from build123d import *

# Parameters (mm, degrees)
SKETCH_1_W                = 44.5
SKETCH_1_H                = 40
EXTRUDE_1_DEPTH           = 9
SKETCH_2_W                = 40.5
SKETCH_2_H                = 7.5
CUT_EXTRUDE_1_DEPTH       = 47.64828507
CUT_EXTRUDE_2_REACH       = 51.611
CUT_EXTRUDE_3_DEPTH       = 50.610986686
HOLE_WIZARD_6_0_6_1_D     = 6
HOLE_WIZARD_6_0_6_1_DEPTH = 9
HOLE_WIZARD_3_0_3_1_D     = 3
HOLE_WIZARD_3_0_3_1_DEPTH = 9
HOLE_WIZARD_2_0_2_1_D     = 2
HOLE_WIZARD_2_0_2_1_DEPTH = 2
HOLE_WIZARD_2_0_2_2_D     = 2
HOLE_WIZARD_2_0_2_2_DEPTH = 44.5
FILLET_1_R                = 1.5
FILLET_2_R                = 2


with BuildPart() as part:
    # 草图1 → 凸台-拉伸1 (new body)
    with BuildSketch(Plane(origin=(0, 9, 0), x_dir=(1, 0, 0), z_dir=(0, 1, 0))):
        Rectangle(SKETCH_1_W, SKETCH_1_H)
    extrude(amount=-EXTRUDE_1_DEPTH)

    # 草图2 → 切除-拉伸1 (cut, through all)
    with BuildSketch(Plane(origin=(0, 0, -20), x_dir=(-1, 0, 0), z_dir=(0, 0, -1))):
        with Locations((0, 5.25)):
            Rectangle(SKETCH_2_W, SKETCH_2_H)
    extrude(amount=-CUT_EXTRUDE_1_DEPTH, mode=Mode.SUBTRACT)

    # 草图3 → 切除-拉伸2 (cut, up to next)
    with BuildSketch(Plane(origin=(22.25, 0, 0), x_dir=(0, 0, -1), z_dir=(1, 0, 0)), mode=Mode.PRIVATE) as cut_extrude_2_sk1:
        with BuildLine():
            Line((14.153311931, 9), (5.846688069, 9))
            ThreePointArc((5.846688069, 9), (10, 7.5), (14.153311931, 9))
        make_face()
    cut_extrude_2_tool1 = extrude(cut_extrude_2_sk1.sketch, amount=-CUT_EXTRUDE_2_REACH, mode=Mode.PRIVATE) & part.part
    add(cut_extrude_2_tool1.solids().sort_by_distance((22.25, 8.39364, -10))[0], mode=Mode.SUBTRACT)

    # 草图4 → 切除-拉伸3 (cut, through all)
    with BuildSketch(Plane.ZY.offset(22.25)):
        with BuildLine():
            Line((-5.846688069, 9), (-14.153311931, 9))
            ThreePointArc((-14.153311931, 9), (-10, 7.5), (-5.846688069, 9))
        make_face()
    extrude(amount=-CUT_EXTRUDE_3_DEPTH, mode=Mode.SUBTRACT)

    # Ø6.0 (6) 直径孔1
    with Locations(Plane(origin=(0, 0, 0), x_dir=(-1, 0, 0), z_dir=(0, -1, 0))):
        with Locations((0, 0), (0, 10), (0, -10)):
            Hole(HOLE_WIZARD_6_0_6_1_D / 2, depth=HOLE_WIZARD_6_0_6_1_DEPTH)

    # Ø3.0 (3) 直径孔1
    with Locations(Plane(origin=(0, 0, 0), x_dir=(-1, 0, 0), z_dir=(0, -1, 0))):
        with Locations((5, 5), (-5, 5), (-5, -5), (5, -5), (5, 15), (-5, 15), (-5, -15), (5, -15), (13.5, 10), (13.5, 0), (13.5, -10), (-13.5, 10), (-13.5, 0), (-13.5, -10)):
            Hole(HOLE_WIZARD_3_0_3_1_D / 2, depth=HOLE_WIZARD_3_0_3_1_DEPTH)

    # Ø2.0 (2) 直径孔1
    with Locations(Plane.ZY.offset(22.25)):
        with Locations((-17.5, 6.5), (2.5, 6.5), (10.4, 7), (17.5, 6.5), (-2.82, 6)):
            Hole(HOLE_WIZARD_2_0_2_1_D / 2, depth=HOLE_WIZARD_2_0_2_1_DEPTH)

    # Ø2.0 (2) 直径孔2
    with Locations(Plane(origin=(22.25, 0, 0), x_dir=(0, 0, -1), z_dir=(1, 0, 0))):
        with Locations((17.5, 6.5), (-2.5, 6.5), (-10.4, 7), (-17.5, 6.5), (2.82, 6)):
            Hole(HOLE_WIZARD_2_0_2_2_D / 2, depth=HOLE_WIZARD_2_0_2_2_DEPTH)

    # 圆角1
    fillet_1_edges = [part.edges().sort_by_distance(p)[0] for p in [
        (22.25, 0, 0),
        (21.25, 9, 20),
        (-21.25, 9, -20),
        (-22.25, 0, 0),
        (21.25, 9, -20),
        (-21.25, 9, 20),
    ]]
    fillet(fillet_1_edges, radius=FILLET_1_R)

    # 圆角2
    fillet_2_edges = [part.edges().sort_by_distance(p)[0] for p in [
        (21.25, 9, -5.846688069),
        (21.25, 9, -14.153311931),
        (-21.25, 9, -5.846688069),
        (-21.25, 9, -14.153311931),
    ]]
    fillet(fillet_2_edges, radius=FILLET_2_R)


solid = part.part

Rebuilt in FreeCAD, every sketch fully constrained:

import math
import FreeCAD as App
import Part
import Sketcher
Q = App.Units.Quantity


def edges_at(feature, points):
    """Names of the edges that pass closest to the given points."""
    edges = feature.Shape.Edges
    near = lambda p: min(range(len(edges)), key=lambda i: edges[i].distToShape(Part.Vertex(*p))[0])
    return sorted({f"Edge{near(p) + 1}" for p in points})


def add_polygon(sketch, points):
    """Adds a closed chain of lines whose ends are joined by coincident constraints."""
    first, n = sketch.GeometryCount, len(points)
    for a, b in zip(points, points[1:] + points[:1]):
        sketch.addGeometry(Part.LineSegment(App.Vector(*a, 0), App.Vector(*b, 0)), False)
    for i in range(n):
        sketch.addConstraint(Sketcher.Constraint("Coincident", first + i, 2, first + (i + 1) % n, 1))

doc = App.newDocument("Part")
body = doc.addObject("PartDesign::Body", "Body")

sketch1 = body.newObject("Sketcher::SketchObject", "Sketch")
sketch1.AttachmentSupport = (doc.getObject("XZ_Plane"), [""])
sketch1.MapMode = "FlatFace"
sketch1.AttachmentOffset = App.Placement(App.Vector(0, 0, -9), App.Rotation())
add_polygon(sketch1, [(-22, -20), (-22, 20), (22, 20), (22, -20)])
sketch1.addConstraint([
    Sketcher.Constraint("Vertical", 0),
    Sketcher.Constraint("Horizontal", 1),
    Sketcher.Constraint("Vertical", 2),
    Sketcher.Constraint("Horizontal", 3),
    Sketcher.Constraint("Symmetric", 0, 2, 2, 2, -1, 1),
    Sketcher.Constraint("DistanceY", 0, 1, 0, 2, Q("40 mm")),
    Sketcher.Constraint("DistanceX", 1, 1, 1, 2, Q("44.5 mm")),
])
pad1 = body.newObject("PartDesign::Pad", "Pad")
pad1.Profile = sketch1
pad1.Length = 9

sketch2 = body.newObject("Sketcher::SketchObject", "Sketch001")
sketch2.AttachmentSupport = (doc.getObject("XY_Plane"), [""])
sketch2.MapMode = "FlatFace"
sketch2.AttachmentOffset = App.Placement(App.Vector(0, 0, -20), App.Rotation())
add_polygon(sketch2, [(20, 9), (20, 2), (-20, 2), (-20, 9)])
sketch2.addConstraint([
    Sketcher.Constraint("Vertical", 0),
    Sketcher.Constraint("Horizontal", 1),
    Sketcher.Constraint("Vertical", 2),
    Sketcher.Constraint("Horizontal", 3),
    Sketcher.Constraint("DistanceX", 1, 2, 1, 1, Q("40.5 mm")),
    Sketcher.Constraint("DistanceY", 0, 2, 0, 1, Q("7.5 mm")),
    Sketcher.Constraint("DistanceY", -1, 1, 2, 2, Q("9 mm")),
    Sketcher.Constraint("DistanceX", -1, 1, 0, 2, Q("20.25 mm")),
])
pocket1 = body.newObject("PartDesign::Pocket", "Pocket")
pocket1.Profile = sketch2
pocket1.Type = "ThroughAll"
pocket1.Reversed = True

sketch3 = body.newObject("Sketcher::SketchObject", "Sketch002")
sketch3.AttachmentSupport = (doc.getObject("YZ_Plane"), [""])
sketch3.MapMode = "FlatFace"
sketch3.AttachmentOffset = App.Placement(App.Vector(0, 0, 22.25), App.Rotation())
sketch3.addGeometry([
    Part.LineSegment(App.Vector(9, -14, 0), App.Vector(9, -6, 0)),
    Part.ArcOfCircle(Part.Circle(App.Vector(14, -10, 0), App.Vector(0, 0, 1), 6), math.radians(140), math.radians(220)),
], False)
sketch3.addConstraint([
    Sketcher.Constraint("Coincident", 0, 1, 1, 2),
    Sketcher.Constraint("Coincident", 1, 1, 0, 2),
    Sketcher.Constraint("Vertical", 0),
    Sketcher.Constraint("Radius", 1, Q("6.5 mm")),
    Sketcher.Constraint("DistanceX", -1, 1, 1, 3, Q("14 mm")),
    Sketcher.Constraint("DistanceY", 1, 3, -1, 1, Q("10 mm")),
    Sketcher.Constraint("DistanceX", -1, 1, 0, 1, Q("9 mm")),
])
pocket2 = body.newObject("PartDesign::Pocket", "Pocket001")
pocket2.Profile = sketch3
pocket2.Type = "UpToFirst"

sketch4 = body.newObject("Sketcher::SketchObject", "Sketch003")
sketch4.AttachmentSupport = (doc.getObject("YZ_Plane"), [""])
sketch4.MapMode = "FlatFace"
sketch4.AttachmentOffset = App.Placement(App.Vector(0, 0, -22.25), App.Rotation())
sketch4.addGeometry([
    Part.LineSegment(App.Vector(9, -6, 0), App.Vector(9, -14, 0)),
    Part.ArcOfCircle(Part.Circle(App.Vector(14, -10, 0), App.Vector(0, 0, 1), 6), math.radians(140), math.radians(220)),
], False)
sketch4.addConstraint([
    Sketcher.Constraint("Coincident", 0, 1, 1, 1),
    Sketcher.Constraint("Coincident", 1, 2, 0, 2),
    Sketcher.Constraint("Vertical", 0),
    Sketcher.Constraint("Radius", 1, Q("6.5 mm")),
    Sketcher.Constraint("DistanceX", -1, 1, 1, 3, Q("14 mm")),
    Sketcher.Constraint("DistanceY", 1, 3, -1, 1, Q("10 mm")),
    Sketcher.Constraint("DistanceX", -1, 1, 0, 1, Q("9 mm")),
])
pocket3 = body.newObject("PartDesign::Pocket", "Pocket002")
pocket3.Profile = sketch4
pocket3.Type = "ThroughAll"
pocket3.Reversed = True

sketch5 = body.newObject("Sketcher::SketchObject", "Sketch004")
sketch5.AttachmentSupport = (doc.getObject("XZ_Plane"), [""])
sketch5.MapMode = "FlatFace"
sketch5.addGeometry([
    Part.Circle(App.Vector(0, 0, 0), App.Vector(0, 0, 1), 3),
    Part.Circle(App.Vector(0, -10, 0), App.Vector(0, 0, 1), 3),
    Part.Circle(App.Vector(0, 10, 0), App.Vector(0, 0, 1), 3),
], False)
sketch5.addConstraint([
    Sketcher.Constraint("Coincident", 0, 3, -1, 1),
    Sketcher.Constraint("Equal", 0, 1),
    Sketcher.Constraint("Equal", 1, 2),
    Sketcher.Constraint("Symmetric", 1, 3, 2, 3, -1, 1),
    Sketcher.Constraint("PointOnObject", 1, 3, -2),
    Sketcher.Constraint("Diameter", 0, Q("6 mm")),
    Sketcher.Constraint("DistanceY", 1, 3, -1, 1, Q("10 mm")),
])
doc.recompute()
hole = body.newObject("PartDesign::Hole", "Hole")
hole.Profile = sketch5
hole.ThreadType = "None"
hole.Diameter = 6
hole.DepthType = "Dimension"
hole.Depth = 9
hole.DrillPoint = "Flat"

sketch6 = body.newObject("Sketcher::SketchObject", "Sketch005")
sketch6.AttachmentSupport = (doc.getObject("XZ_Plane"), [""])
sketch6.MapMode = "FlatFace"
sketch6.addGeometry([
    Part.Circle(App.Vector(-5, -5, 0), App.Vector(0, 0, 1), 1.5),
    Part.Circle(App.Vector(5, -5, 0), App.Vector(0, 0, 1), 1.5),
    Part.Circle(App.Vector(5, 5, 0), App.Vector(0, 0, 1), 1.5),
    Part.Circle(App.Vector(-5, 5, 0), App.Vector(0, 0, 1), 1.5),
    Part.Circle(App.Vector(-5, -15, 0), App.Vector(0, 0, 1), 1.5),
    Part.Circle(App.Vector(5, -15, 0), App.Vector(0, 0, 1), 1.5),
    Part.Circle(App.Vector(5, 15, 0), App.Vector(0, 0, 1), 1.5),
    Part.Circle(App.Vector(-5, 15, 0), App.Vector(0, 0, 1), 1.5),
    Part.Circle(App.Vector(-13.5, -10, 0), App.Vector(0, 0, 1), 1.5),
    Part.Circle(App.Vector(-13.5, 0, 0), App.Vector(0, 0, 1), 1.5),
    Part.Circle(App.Vector(-13.5, 10, 0), App.Vector(0, 0, 1), 1.5),
    Part.Circle(App.Vector(13.5, -10, 0), App.Vector(0, 0, 1), 1.5),
    Part.Circle(App.Vector(13.5, 0, 0), App.Vector(0, 0, 1), 1.5),
    Part.Circle(App.Vector(13.5, 10, 0), App.Vector(0, 0, 1), 1.5),
], False)
sketch6.addConstraint([
    Sketcher.Constraint("Equal", 0, 1),
    Sketcher.Constraint("Equal", 1, 2),
    Sketcher.Constraint("Equal", 2, 3),
    Sketcher.Constraint("Equal", 3, 4),
    Sketcher.Constraint("Equal", 4, 5),
    Sketcher.Constraint("Equal", 5, 6),
    Sketcher.Constraint("Equal", 6, 7),
    Sketcher.Constraint("Equal", 7, 8),
    Sketcher.Constraint("Equal", 8, 9),
    Sketcher.Constraint("Equal", 9, 10),
    Sketcher.Constraint("Equal", 10, 11),
    Sketcher.Constraint("Equal", 11, 12),
    Sketcher.Constraint("Equal", 12, 13),
    Sketcher.Constraint("Symmetric", 0, 3, 2, 3, -1, 1),
    Sketcher.Constraint("Symmetric", 1, 3, 3, 3, -1, 1),
    Sketcher.Constraint("Symmetric", 4, 3, 6, 3, -1, 1),
    Sketcher.Constraint("Symmetric", 5, 3, 7, 3, -1, 1),
    Sketcher.Constraint("Symmetric", 10, 3, 11, 3, -1, 1),
    Sketcher.Constraint("Symmetric", 9, 3, 12, 3, -1, 1),
    Sketcher.Constraint("Symmetric", 8, 3, 13, 3, -1, 1),
    Sketcher.Constraint("Symmetric", 0, 3, 1, 3, -2),
    Sketcher.Constraint("Symmetric", 4, 3, 5, 3, -2),
    Sketcher.Constraint("Symmetric", 8, 3, 11, 3, -2),
    Sketcher.Constraint("PointOnObject", 9, 3, -1),
    Sketcher.Constraint("Vertical", 3, 3, 4, 3),
    Sketcher.Constraint("Vertical", 8, 3, 9, 3),
    Sketcher.Constraint("Diameter", 0, Q("3 mm")),
    Sketcher.Constraint("DistanceX", 0, 3, -1, 1, Q("5 mm")),
    Sketcher.Constraint("DistanceY", 0, 3, -1, 1, Q("5 mm")),
    Sketcher.Constraint("DistanceY", 4, 3, -1, 1, Q("15 mm")),
    Sketcher.Constraint("DistanceY", 8, 3, -1, 1, Q("10 mm")),
    Sketcher.Constraint("DistanceX", 8, 3, -1, 1, Q("13.5 mm")),
])
doc.recompute()
hole2 = body.newObject("PartDesign::Hole", "Hole001")
hole2.Profile = sketch6
hole2.ThreadType = "None"
hole2.Diameter = 3
hole2.DepthType = "Dimension"
hole2.Depth = 9
hole2.DrillPoint = "Flat"

sketch7 = body.newObject("Sketcher::SketchObject", "Sketch006")
sketch7.AttachmentSupport = (doc.getObject("YZ_Plane"), [""])
sketch7.MapMode = "FlatFace"
sketch7.AttachmentOffset = App.Placement(App.Vector(0, 0, -22.25), App.Rotation())
sketch7.addGeometry([
    Part.Circle(App.Vector(6.5, -17.5, 0), App.Vector(0, 0, 1), 1),
    Part.Circle(App.Vector(6.5, 2.5, 0), App.Vector(0, 0, 1), 1),
    Part.Circle(App.Vector(7, 10.4, 0), App.Vector(0, 0, 1), 1),
    Part.Circle(App.Vector(6.5, 17.5, 0), App.Vector(0, 0, 1), 1),
    Part.Circle(App.Vector(6, -2.8, 0), App.Vector(0, 0, 1), 1),
], False)
sketch7.addConstraint([
    Sketcher.Constraint("Equal", 0, 1),
    Sketcher.Constraint("Equal", 1, 2),
    Sketcher.Constraint("Equal", 2, 3),
    Sketcher.Constraint("Equal", 3, 4),
    Sketcher.Constraint("Symmetric", 0, 3, 3, 3, -1),
    Sketcher.Constraint("Vertical", 0, 3, 1, 3),
    Sketcher.Constraint("Diameter", 0, Q("2 mm")),
    Sketcher.Constraint("DistanceX", -1, 1, 2, 3, Q("7 mm")),
    Sketcher.Constraint("DistanceX", -1, 1, 4, 3, Q("6 mm")),
    Sketcher.Constraint("DistanceY", 0, 3, 1, 3, Q("20 mm")),
    Sketcher.Constraint("DistanceY", 1, 3, 3, 3, Q("15 mm")),
    Sketcher.Constraint("DistanceX", -1, 1, 0, 3, Q("6.5 mm")),
    Sketcher.Constraint("DistanceY", -1, 1, 2, 3, Q("10.4 mm")),
    Sketcher.Constraint("DistanceY", 4, 3, -1, 1, Q("2.82 mm")),
])
doc.recompute()
hole3 = body.newObject("PartDesign::Hole", "Hole002")
hole3.Profile = sketch7
hole3.ThreadType = "None"
hole3.Diameter = 2
hole3.DepthType = "Dimension"
hole3.Depth = 2
hole3.DrillPoint = "Flat"
hole3.Reversed = True

sketch8 = body.newObject("Sketcher::SketchObject", "Sketch007")
sketch8.AttachmentSupport = (doc.getObject("YZ_Plane"), [""])
sketch8.MapMode = "FlatFace"
sketch8.AttachmentOffset = App.Placement(App.Vector(0, 0, 22.25), App.Rotation())
sketch8.addGeometry([
    Part.Circle(App.Vector(6.5, -17.5, 0), App.Vector(0, 0, 1), 1),
    Part.Circle(App.Vector(6.5, 2.5, 0), App.Vector(0, 0, 1), 1),
    Part.Circle(App.Vector(7, 10.4, 0), App.Vector(0, 0, 1), 1),
    Part.Circle(App.Vector(6.5, 17.5, 0), App.Vector(0, 0, 1), 1),
    Part.Circle(App.Vector(6, -2.8, 0), App.Vector(0, 0, 1), 1),
], False)
sketch8.addConstraint([
    Sketcher.Constraint("Equal", 0, 1),
    Sketcher.Constraint("Equal", 1, 2),
    Sketcher.Constraint("Equal", 2, 3),
    Sketcher.Constraint("Equal", 3, 4),
    Sketcher.Constraint("Symmetric", 0, 3, 3, 3, -1),
    Sketcher.Constraint("Vertical", 0, 3, 1, 3),
    Sketcher.Constraint("Diameter", 0, Q("2 mm")),
    Sketcher.Constraint("DistanceX", -1, 1, 2, 3, Q("7 mm")),
    Sketcher.Constraint("DistanceX", -1, 1, 4, 3, Q("6 mm")),
    Sketcher.Constraint("DistanceY", 0, 3, 1, 3, Q("20 mm")),
    Sketcher.Constraint("DistanceY", 1, 3, 3, 3, Q("15 mm")),
    Sketcher.Constraint("DistanceX", -1, 1, 0, 3, Q("6.5 mm")),
    Sketcher.Constraint("DistanceY", -1, 1, 2, 3, Q("10.4 mm")),
    Sketcher.Constraint("DistanceY", 4, 3, -1, 1, Q("2.82 mm")),
])
doc.recompute()
hole4 = body.newObject("PartDesign::Hole", "Hole003")
hole4.Profile = sketch8
hole4.ThreadType = "None"
hole4.Diameter = 2
hole4.DepthType = "Dimension"
hole4.Depth = 44.5
hole4.DrillPoint = "Flat"
doc.recompute()

fillet = body.newObject("PartDesign::Fillet", "Fillet")
fillet.Base = (hole4, edges_at(hole4, [
    (22.25, 0, 0),
    (21.25, 9, 20),
    (-21.25, 9, -20),
    (-22.25, 0, 0),
    (21.25, 9, -20),
    (-21.25, 9, 20),
]))
fillet.Radius = 1.5
doc.recompute()

fillet2 = body.newObject("PartDesign::Fillet", "Fillet001")
fillet2.Base = (fillet, edges_at(fillet, [
    (21.25, 9, -5.847),
    (21.25, 9, -14.153),
    (-21.25, 9, -5.847),
    (-21.25, 9, -14.153),
]))
fillet2.Radius = 2

doc.recompute()
